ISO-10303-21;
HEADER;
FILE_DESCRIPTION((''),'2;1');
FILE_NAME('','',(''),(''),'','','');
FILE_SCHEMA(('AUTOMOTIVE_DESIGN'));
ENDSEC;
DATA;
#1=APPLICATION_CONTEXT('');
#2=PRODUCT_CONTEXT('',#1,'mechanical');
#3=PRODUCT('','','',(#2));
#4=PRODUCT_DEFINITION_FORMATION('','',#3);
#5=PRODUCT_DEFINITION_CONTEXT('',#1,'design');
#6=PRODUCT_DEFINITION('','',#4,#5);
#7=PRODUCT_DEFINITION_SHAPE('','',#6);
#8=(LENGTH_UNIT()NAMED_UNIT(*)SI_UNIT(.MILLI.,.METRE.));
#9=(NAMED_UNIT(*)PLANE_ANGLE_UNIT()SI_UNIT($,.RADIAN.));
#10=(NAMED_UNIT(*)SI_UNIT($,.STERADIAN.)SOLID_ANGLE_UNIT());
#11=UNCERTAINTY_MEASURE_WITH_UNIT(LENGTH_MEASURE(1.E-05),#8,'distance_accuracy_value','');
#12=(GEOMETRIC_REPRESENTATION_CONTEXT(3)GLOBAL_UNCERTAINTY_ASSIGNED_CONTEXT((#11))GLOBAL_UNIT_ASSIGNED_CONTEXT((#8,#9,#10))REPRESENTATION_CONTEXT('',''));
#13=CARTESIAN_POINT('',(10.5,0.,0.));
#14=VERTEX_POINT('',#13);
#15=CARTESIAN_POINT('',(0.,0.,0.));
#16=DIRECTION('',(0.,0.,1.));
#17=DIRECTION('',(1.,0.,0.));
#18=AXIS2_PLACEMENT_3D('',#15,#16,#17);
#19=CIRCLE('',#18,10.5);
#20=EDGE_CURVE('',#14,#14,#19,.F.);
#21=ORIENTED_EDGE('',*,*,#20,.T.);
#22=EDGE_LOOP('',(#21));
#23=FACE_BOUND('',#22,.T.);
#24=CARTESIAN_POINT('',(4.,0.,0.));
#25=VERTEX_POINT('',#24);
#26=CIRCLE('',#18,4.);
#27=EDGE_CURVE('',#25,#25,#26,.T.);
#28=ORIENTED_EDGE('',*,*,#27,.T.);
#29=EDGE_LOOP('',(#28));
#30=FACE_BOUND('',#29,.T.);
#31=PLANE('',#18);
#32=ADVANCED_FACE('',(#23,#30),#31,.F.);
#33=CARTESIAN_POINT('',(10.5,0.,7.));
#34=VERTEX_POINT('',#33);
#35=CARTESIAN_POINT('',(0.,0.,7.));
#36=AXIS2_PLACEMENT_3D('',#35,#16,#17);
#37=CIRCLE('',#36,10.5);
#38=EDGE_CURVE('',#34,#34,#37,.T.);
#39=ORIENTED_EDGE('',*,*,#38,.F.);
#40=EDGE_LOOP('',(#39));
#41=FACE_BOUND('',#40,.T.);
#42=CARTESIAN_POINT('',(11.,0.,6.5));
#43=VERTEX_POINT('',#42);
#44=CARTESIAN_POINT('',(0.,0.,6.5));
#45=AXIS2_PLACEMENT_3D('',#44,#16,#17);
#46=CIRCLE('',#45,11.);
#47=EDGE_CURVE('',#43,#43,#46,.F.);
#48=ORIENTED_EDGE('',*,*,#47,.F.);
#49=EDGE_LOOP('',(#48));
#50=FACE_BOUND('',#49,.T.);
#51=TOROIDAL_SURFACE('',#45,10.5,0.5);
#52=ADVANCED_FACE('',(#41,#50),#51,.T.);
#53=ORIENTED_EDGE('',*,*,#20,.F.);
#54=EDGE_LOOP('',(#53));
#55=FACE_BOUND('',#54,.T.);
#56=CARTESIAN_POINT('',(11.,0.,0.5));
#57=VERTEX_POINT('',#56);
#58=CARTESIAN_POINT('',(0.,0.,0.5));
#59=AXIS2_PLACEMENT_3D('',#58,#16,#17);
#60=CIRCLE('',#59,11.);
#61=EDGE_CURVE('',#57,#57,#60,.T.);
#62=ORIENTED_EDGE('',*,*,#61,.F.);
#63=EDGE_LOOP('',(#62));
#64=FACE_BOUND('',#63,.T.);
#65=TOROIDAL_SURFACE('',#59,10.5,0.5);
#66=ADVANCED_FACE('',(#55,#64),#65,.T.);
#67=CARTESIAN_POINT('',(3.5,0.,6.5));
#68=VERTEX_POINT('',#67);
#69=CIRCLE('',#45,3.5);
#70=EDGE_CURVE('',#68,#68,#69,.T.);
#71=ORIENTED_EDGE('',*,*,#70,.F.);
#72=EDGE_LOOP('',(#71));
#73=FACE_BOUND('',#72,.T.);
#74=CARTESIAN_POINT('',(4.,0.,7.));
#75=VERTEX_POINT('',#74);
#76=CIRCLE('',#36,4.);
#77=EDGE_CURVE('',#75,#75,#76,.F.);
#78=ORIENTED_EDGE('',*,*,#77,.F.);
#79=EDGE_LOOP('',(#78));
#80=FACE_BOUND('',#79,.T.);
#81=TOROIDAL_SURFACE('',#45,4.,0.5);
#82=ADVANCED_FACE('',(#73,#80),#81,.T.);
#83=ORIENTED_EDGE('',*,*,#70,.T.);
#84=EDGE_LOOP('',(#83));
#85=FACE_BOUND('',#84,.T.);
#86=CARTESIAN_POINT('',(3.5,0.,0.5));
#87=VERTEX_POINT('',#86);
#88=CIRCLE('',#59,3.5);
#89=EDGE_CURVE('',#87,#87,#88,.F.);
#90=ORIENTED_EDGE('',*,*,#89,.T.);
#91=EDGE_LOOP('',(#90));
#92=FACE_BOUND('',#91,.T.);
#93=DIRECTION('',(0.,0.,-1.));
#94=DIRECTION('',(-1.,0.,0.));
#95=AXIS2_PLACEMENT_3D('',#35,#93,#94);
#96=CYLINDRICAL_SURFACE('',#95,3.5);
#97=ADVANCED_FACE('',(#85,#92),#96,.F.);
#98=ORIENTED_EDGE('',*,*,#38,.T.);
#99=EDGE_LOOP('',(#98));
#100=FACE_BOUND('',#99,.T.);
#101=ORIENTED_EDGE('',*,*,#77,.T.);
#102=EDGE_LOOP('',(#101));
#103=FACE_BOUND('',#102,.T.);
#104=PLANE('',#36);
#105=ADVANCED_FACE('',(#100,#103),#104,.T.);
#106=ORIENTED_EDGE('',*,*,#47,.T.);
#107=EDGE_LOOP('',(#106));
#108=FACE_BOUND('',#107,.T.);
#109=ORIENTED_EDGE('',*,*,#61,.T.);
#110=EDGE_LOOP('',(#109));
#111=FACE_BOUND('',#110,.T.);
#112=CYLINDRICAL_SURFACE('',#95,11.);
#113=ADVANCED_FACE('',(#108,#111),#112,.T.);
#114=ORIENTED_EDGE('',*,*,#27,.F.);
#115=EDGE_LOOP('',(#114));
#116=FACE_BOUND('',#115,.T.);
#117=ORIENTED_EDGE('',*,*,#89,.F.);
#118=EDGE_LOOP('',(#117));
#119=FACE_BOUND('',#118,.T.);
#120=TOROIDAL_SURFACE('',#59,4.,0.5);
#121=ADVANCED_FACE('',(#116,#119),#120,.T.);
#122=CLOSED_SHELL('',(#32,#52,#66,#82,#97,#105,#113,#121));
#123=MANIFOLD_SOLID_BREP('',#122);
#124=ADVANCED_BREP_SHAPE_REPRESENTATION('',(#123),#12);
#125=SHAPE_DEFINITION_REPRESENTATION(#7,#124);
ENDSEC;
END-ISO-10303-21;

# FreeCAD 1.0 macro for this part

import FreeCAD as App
import Part
import Sketcher

V = App.Vector
Q = App.Units.Quantity


def edges_at(feature, points):
    """Names of the edges that pass closest to the given points."""
    edges = feature.Shape.Edges
    near = lambda p: min(range(len(edges)), key=lambda i: edges[i].distToShape(Part.Vertex(*p))[0])
    return sorted({f"Edge{near(p) + 1}" for p in points})

doc = App.newDocument("Part")
body = doc.addObject("PartDesign::Body", "Body")

# Sketch on XY plane
sketch1 = doc.addObject("Sketcher::SketchObject", "Sketch")
body.addObject(sketch1)
sketch1.AttachmentSupport = (doc.XY_Plane, [""])
sketch1.MapMode = "FlatFace"
sketch1.addGeometry([
    Part.Circle(V(0, 0, 0), V(0, 0, 1), 11),
    Part.Circle(V(0, 0, 0), V(0, 0, 1), 3.5),
], False)
sketch1.addConstraint([
    Sketcher.Constraint("Coincident", 0, 3, -1, 1),
    Sketcher.Constraint("Coincident", 1, 3, -1, 1),
    Sketcher.Constraint("Diameter", 0, Q("22 mm")),
    Sketcher.Constraint("Diameter", 1, Q("7 mm")),
])
pad1 = doc.addObject("PartDesign::Pad", "Pad")
body.addObject(pad1)
pad1.Profile = sketch1
pad1.Length = 7
doc.recompute()

fillet = doc.addObject("PartDesign::Fillet", "Fillet")
body.addObject(fillet)
fillet.Base = (pad1, edges_at(pad1, [
    (-11, 0, 0),
    (-11, 0, 7),
    (-3.5, 0, 0),
    (-3.5, 0, 7),
]))
fillet.Radius = 0.5

doc.recompute()
